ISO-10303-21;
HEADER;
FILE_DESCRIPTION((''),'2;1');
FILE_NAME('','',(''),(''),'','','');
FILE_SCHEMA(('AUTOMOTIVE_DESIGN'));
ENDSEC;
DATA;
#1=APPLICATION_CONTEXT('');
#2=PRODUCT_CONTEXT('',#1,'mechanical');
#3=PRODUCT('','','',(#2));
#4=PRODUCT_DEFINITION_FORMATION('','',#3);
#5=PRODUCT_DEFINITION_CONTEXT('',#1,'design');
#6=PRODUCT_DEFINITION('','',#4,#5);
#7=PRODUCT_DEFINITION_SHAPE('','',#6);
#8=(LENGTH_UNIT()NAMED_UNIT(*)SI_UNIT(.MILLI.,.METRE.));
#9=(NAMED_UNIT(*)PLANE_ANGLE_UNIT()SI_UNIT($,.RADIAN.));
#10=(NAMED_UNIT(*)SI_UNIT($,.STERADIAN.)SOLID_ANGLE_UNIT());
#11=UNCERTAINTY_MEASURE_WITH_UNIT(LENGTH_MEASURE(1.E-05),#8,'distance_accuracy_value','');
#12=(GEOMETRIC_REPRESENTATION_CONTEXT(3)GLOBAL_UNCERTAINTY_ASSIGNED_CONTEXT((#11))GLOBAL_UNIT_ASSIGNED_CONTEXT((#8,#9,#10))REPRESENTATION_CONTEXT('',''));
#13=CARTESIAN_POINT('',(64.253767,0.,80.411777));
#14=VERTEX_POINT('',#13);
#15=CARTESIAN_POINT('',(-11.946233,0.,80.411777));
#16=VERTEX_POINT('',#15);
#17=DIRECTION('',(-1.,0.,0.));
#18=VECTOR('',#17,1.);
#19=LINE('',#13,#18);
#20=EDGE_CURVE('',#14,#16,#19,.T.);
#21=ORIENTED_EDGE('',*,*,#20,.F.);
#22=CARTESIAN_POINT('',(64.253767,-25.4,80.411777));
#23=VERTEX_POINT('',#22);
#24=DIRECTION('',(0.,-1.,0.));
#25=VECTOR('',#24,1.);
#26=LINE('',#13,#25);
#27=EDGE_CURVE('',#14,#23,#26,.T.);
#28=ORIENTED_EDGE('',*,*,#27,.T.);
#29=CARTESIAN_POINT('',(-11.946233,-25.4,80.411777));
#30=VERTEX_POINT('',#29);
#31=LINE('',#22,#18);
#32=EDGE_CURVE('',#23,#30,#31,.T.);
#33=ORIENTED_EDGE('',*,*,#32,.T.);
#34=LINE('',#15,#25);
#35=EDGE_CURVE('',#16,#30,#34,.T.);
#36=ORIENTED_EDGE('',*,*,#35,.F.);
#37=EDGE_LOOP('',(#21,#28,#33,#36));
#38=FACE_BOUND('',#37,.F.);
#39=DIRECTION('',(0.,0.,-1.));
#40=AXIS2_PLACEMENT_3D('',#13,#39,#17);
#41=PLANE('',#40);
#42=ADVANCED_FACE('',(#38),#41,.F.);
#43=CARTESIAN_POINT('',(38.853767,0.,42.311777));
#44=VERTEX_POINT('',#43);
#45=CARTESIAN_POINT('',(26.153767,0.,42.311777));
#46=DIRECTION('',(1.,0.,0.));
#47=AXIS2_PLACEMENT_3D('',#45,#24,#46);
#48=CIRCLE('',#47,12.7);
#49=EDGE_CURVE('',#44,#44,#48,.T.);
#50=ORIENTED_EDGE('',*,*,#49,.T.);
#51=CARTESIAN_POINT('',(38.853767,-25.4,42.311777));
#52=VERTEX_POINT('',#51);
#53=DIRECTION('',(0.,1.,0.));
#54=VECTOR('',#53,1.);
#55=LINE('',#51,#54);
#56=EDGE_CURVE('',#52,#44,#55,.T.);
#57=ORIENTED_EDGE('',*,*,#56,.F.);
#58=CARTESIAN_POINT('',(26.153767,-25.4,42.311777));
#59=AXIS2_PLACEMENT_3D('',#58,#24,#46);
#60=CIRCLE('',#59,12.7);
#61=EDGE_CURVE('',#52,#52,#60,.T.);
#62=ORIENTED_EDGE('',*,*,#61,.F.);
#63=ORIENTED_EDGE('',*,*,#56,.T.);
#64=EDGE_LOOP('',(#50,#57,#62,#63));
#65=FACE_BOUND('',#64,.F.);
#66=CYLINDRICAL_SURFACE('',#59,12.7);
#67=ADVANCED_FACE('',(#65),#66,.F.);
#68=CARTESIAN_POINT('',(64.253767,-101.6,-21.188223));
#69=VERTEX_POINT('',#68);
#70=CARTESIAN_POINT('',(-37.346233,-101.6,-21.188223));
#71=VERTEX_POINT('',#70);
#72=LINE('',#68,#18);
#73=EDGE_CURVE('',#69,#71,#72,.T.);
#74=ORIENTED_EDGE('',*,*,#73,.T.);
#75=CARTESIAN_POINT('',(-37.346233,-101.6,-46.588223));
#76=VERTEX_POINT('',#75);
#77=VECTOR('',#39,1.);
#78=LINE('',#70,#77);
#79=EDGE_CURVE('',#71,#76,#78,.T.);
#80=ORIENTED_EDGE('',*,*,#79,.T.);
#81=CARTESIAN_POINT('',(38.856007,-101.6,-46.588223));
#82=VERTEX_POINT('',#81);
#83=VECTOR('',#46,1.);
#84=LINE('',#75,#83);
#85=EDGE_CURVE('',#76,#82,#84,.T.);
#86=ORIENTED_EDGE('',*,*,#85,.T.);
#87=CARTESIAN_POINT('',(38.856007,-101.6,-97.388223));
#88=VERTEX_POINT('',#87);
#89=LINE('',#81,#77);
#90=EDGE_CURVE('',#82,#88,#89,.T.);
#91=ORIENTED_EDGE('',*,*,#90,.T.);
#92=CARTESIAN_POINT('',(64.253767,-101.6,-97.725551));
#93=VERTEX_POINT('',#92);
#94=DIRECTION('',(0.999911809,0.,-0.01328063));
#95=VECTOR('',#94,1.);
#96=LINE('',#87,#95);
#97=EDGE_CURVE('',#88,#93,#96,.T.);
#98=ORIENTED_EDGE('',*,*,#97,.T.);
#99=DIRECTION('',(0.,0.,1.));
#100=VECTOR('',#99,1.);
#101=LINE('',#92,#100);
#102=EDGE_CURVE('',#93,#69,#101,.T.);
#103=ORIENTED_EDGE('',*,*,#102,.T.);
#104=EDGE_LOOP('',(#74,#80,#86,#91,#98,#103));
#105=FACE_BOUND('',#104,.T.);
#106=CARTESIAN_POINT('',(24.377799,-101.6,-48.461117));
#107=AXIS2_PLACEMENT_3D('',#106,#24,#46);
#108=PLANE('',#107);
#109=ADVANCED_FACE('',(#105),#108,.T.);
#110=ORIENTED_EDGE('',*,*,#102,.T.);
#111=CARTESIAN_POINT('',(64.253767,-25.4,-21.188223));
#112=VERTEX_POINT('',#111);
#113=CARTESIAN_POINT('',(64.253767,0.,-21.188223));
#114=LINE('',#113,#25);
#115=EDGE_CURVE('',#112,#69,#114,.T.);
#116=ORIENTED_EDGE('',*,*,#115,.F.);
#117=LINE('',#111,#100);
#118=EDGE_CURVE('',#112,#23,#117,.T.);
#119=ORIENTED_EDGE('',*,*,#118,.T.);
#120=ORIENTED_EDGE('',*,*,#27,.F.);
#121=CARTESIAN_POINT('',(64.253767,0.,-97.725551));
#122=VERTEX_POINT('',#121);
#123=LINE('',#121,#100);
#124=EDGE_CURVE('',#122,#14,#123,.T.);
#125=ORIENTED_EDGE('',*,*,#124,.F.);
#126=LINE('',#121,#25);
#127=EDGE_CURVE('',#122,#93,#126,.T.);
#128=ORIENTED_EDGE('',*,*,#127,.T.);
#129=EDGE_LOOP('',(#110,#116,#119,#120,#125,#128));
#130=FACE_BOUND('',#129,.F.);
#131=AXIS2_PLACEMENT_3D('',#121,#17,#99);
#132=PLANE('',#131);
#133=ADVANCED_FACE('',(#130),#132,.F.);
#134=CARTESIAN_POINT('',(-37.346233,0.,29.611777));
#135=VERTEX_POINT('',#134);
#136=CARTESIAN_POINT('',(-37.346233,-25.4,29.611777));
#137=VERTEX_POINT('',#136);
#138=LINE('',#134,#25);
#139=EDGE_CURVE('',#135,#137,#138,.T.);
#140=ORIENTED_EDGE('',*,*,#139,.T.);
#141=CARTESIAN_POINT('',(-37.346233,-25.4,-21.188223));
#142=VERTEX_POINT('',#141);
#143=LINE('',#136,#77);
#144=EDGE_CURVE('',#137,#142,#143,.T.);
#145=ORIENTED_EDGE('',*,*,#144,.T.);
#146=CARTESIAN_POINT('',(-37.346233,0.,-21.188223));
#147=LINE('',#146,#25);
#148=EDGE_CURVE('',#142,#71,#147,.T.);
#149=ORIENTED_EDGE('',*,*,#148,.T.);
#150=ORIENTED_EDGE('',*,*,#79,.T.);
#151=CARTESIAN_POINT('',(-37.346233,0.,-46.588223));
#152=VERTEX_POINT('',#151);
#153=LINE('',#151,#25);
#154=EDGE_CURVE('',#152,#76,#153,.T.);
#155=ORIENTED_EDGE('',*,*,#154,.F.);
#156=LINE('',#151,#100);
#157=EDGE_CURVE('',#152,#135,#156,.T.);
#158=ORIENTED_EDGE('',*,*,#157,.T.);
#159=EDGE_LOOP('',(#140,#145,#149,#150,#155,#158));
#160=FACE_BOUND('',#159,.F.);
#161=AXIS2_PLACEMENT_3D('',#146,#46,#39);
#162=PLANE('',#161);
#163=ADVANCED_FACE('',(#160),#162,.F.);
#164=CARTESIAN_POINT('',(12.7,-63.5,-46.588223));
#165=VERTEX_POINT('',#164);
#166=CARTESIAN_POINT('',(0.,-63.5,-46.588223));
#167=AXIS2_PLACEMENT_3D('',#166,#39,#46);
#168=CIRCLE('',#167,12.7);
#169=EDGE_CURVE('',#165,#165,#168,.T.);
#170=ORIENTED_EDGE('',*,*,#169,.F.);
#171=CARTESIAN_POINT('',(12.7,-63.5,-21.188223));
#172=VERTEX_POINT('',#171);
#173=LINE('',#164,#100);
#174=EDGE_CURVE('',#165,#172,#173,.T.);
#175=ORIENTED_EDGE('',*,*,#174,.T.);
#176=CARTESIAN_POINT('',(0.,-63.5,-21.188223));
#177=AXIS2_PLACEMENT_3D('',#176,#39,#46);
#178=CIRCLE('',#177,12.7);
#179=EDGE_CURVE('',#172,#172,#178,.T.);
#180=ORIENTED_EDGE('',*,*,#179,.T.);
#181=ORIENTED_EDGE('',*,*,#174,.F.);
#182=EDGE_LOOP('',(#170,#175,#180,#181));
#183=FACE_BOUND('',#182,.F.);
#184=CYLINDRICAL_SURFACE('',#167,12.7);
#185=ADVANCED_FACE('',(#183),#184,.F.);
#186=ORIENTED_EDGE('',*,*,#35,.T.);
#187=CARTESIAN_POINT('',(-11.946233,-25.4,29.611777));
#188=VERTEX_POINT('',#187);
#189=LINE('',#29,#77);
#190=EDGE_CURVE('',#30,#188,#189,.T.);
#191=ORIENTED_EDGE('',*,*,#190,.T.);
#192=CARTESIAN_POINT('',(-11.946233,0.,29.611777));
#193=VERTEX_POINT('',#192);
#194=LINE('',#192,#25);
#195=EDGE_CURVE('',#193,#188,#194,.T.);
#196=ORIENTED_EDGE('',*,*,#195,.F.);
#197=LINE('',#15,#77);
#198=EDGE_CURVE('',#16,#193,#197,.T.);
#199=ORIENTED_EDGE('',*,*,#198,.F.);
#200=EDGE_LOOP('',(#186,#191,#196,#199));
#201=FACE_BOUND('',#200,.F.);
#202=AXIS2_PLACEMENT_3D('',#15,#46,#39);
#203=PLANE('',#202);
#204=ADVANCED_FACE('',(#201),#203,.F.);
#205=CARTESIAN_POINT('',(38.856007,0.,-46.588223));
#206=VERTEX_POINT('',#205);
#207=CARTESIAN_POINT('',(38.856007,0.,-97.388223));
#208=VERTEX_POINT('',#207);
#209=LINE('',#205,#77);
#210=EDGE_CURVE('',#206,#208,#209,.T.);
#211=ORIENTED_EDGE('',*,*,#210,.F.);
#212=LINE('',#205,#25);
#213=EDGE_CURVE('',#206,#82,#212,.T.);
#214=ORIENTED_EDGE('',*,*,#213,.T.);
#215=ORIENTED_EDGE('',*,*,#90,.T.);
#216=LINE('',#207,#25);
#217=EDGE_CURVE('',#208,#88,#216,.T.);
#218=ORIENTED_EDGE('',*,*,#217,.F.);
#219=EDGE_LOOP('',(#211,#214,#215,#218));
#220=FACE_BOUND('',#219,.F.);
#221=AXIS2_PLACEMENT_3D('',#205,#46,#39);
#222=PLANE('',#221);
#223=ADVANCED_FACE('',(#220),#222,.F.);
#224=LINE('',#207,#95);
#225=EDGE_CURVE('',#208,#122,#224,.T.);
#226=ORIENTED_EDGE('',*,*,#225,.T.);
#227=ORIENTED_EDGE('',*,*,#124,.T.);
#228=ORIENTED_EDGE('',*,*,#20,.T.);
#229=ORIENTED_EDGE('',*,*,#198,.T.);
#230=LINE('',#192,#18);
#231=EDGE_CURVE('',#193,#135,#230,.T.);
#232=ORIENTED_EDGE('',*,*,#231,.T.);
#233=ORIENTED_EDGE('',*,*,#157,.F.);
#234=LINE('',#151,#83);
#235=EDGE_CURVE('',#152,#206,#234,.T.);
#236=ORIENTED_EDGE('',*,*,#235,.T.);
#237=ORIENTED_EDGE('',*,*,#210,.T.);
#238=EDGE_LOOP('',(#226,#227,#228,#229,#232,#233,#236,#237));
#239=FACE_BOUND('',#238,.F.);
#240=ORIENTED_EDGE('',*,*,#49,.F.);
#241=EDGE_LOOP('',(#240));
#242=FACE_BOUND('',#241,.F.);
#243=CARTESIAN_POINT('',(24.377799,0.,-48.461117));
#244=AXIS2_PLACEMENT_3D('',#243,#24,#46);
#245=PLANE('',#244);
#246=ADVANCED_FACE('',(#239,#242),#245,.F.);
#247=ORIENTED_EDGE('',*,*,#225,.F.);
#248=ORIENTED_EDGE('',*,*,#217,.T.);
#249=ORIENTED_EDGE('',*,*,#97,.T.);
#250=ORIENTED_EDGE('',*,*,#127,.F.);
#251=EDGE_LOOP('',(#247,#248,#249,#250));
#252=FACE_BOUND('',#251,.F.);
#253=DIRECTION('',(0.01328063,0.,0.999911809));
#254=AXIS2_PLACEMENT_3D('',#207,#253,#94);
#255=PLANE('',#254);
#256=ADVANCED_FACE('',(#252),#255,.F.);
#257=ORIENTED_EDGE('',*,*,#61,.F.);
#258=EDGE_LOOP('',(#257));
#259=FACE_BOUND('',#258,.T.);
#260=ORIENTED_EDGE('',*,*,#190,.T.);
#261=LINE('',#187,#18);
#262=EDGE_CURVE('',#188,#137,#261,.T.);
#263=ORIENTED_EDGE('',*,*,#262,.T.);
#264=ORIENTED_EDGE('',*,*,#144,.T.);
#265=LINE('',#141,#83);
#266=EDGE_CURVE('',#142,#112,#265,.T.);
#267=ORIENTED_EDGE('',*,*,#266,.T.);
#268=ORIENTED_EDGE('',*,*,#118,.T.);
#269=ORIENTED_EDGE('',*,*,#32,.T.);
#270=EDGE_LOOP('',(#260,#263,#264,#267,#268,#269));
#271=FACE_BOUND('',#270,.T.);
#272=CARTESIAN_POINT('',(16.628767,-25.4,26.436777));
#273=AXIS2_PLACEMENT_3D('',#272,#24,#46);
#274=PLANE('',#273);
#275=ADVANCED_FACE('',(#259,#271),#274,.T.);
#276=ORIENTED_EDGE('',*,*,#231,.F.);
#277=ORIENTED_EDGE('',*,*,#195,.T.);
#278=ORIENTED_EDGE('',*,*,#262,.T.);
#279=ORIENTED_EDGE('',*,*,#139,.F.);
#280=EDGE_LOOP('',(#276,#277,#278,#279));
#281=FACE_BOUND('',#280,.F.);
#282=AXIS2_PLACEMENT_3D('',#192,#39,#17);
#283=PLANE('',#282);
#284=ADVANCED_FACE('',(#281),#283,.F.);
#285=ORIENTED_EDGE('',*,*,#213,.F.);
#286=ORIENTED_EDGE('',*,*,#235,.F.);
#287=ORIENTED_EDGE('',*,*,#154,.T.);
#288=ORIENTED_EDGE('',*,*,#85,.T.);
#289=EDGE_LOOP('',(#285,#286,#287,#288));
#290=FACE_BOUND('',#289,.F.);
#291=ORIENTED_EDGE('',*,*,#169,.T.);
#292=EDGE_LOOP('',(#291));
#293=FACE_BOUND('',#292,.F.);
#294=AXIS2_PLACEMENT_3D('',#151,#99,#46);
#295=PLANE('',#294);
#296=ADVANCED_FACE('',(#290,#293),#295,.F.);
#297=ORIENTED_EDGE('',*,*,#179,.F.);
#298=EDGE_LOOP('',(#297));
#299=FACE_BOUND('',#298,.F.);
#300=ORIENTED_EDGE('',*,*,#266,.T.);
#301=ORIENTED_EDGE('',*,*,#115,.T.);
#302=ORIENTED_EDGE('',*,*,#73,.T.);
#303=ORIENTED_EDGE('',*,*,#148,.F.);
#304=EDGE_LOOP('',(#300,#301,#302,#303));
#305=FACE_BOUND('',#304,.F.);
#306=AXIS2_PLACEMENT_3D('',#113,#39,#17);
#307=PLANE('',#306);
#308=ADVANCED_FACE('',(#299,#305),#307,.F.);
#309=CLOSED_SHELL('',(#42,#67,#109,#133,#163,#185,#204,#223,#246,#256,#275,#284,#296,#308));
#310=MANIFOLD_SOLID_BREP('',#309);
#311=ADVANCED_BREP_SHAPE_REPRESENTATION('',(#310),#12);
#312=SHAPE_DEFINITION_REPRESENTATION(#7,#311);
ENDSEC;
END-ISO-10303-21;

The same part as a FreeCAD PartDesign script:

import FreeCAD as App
import Part
import Sketcher

V = App.Vector
Q = App.Units.Quantity


def add_polygon(sketch, points):
    """Adds a closed chain of lines whose ends are joined by coincident constraints."""
    first, n = sketch.GeometryCount, len(points)
    for a, b in zip(points, points[1:] + points[:1]):
        sketch.addGeometry(Part.LineSegment(App.Vector(*a, 0), App.Vector(*b, 0)), False)
    for i in range(n):
        sketch.addConstraint(Sketcher.Constraint("Coincident", first + i, 2, first + (i + 1) % n, 1))

doc = App.newDocument("Part")
body = doc.addObject("PartDesign::Body", "Body")

sketch1 = doc.addObject("Sketcher::SketchObject", "Sketch")
body.addObject(sketch1)
sketch1.AttachmentSupport = (doc.XZ_Plane, [""])
sketch1.MapMode = "FlatFace"
add_polygon(sketch1, [(64, 80), (-12, 80), (-12, 30), (-37, 30), (-37, -21), (64, -21)])
sketch1.addConstraint([
    Sketcher.Constraint("Horizontal", 0),
    Sketcher.Constraint("Vertical", 1),
    Sketcher.Constraint("Horizontal", 2),
    Sketcher.Constraint("Vertical", 3),
    Sketcher.Constraint("Horizontal", 4),
    Sketcher.Constraint("Vertical", 5),
    Sketcher.Constraint("Equal", 1, 3),
    Sketcher.Constraint("Equal", 4, 5),
    Sketcher.Constraint("DistanceX", 0, 2, 0, 1, Q("3 in")),
    Sketcher.Constraint("DistanceX", 2, 2, 2, 1, Q("1 in")),
    Sketcher.Constraint("DistanceX", 0, 2, -1, 1, Q("11.946233 mm")),
    Sketcher.Constraint("DistanceY", -1, 1, 0, 2, Q("80.411777 mm")),
])
pad1 = doc.addObject("PartDesign::Pad", "Pad")
body.addObject(pad1)
pad1.Profile = sketch1
pad1.Length = Q("1 in")

sketch2 = doc.addObject("Sketcher::SketchObject", "Sketch001")
body.addObject(sketch2)
sketch2.AttachmentSupport = (doc.XZ_Plane, [""])
sketch2.MapMode = "FlatFace"
add_polygon(sketch2, [(64, -98), (64, -21), (-37, -21), (-37, -47), (39, -47), (39, -97)])
sketch2.addConstraint([
    Sketcher.Constraint("Vertical", 0),
    Sketcher.Constraint("Horizontal", 1),
    Sketcher.Constraint("Vertical", 2),
    Sketcher.Constraint("Horizontal", 3),
    Sketcher.Constraint("Vertical", 4),
    Sketcher.Constraint("DistanceX", 1, 2, 1, 1, Q("4 in")),
    Sketcher.Constraint("DistanceY", 2, 2, 2, 1, Q("1 in")),
    Sketcher.Constraint("DistanceY", 4, 2, 4, 1, Q("2 in")),
    Sketcher.Constraint("Distance", 5, Q("1 in")),
    Sketcher.Constraint("DistanceX", 3, 1, 3, 2, Q("76.20224 mm")),
    Sketcher.Constraint("DistanceY", 5, 2, -1, 1, Q("97.725551 mm")),
    Sketcher.Constraint("DistanceX", -1, 1, 0, 2, Q("64.253767 mm")),
])
pad2 = doc.addObject("PartDesign::Pad", "Pad001")
body.addObject(pad2)
pad2.Profile = sketch2
pad2.Length = Q("4 in")

sketch3 = doc.addObject("Sketcher::SketchObject", "Sketch002")
body.addObject(sketch3)
sketch3.AttachmentSupport = (doc.XZ_Plane, [""])
sketch3.MapMode = "FlatFace"
sketch3.AttachmentOffset = App.Placement(V(0, 0, 1 * 25.4), App.Rotation())
sketch3.addGeometry(Part.Circle(V(26, 42, 0), V(0, 0, 1), 13), False)
sketch3.addConstraint([
    Sketcher.Constraint("Diameter", 0, Q("1 in")),
    Sketcher.Constraint("DistanceX", -1, 1, 0, 3, Q("26.153767 mm")),
    Sketcher.Constraint("DistanceY", -1, 1, 0, 3, Q("42.311777 mm")),
])
pocket1 = doc.addObject("PartDesign::Pocket", "Pocket")
body.addObject(pocket1)
pocket1.Profile = sketch3
pocket1.Length = Q("1 in")

sketch4 = doc.addObject("Sketcher::SketchObject", "Sketch003")
body.addObject(sketch4)
sketch4.AttachmentSupport = (doc.XY_Plane, [""])
sketch4.MapMode = "FlatFace"
sketch4.AttachmentOffset = App.Placement(V(0, 0, -46.588223), App.Rotation())
sketch4.addGeometry(Part.Circle(V(0, -64, 0), V(0, 0, 1), 13), False)
sketch4.addConstraint([
    Sketcher.Constraint("PointOnObject", 0, 3, -2),
    Sketcher.Constraint("Diameter", 0, Q("1 in")),
    Sketcher.Constraint("DistanceY", 0, 3, -1, 1, Q("2.5 in")),
])
pocket2 = doc.addObject("PartDesign::Pocket", "Pocket001")
body.addObject(pocket2)
pocket2.Profile = sketch4
pocket2.Length = Q("1 in")
pocket2.Reversed = True

doc.recompute()
